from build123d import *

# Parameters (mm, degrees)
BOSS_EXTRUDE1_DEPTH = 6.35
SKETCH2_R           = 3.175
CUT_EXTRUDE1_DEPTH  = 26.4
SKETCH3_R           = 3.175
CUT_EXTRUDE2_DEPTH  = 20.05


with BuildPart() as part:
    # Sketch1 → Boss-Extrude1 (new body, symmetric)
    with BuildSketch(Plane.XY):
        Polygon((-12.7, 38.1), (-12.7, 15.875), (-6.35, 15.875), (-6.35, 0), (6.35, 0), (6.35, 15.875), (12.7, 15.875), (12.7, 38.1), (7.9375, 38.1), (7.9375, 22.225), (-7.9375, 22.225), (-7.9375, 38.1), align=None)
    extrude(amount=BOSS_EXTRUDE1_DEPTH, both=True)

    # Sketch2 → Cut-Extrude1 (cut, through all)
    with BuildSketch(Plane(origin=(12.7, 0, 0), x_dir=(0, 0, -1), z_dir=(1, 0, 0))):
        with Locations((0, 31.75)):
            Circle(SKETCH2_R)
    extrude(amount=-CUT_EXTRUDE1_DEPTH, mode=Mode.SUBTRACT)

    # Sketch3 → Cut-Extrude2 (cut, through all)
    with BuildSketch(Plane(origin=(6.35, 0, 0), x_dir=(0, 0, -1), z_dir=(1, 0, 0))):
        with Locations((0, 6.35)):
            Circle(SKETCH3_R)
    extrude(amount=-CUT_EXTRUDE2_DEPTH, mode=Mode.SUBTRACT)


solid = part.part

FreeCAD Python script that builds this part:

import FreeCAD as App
import Part
import Sketcher
Q = App.Units.Quantity


def add_polygon(sketch, points):
    """Adds a closed chain of lines whose ends are joined by coincident constraints."""
    first, n = sketch.GeometryCount, len(points)
    for a, b in zip(points, points[1:] + points[:1]):
        sketch.addGeometry(Part.LineSegment(App.Vector(*a, 0), App.Vector(*b, 0)), False)
    for i in range(n):
        sketch.addConstraint(Sketcher.Constraint("Coincident", first + i, 2, first + (i + 1) % n, 1))

doc = App.newDocument("Part")
params = doc.addObject("Spreadsheet::Sheet", "Params")
for row, (alias, value) in enumerate([
    ("sketch1_width", "0.5 in"),
    ("sketch1_width2", "0.1875 in"),
    ("pad1_length", "0.5 in"),
    ("sketch2_diameter", "0.25 in"),
    ("sketch3_diameter", "0.25 in"),
], start=1):
    params.set(f"A{row}", alias)
    params.set(f"B{row}", "=" + value)
    params.setAlias(f"B{row}", alias)

body = doc.addObject("PartDesign::Body", "Body")

# Sketch on XY plane
sketch1 = body.newObject("Sketcher::SketchObject", "Sketch")
sketch1.AttachmentSupport = (doc.getObject("XY_Plane"), [""])
sketch1.MapMode = "FlatFace"
add_polygon(sketch1, [(-12.7, 38.1), (-12.7, 15.9), (-6.3, 15.9), (-6.3, 0), (6.3, 0), (6.3, 15.9), (12.7, 15.9), (12.7, 38.1), (7.9, 38.1), (7.9, 22.2), (-7.9, 22.2), (-7.9, 38.1)])  # lines 0-11
sketch1.addConstraint([
    Sketcher.Constraint("Vertical", 0),
    Sketcher.Constraint("Horizontal", 1),
    Sketcher.Constraint("Vertical", 2),
    Sketcher.Constraint("Horizontal", 3),
    Sketcher.Constraint("Vertical", 4),
    Sketcher.Constraint("Horizontal", 5),
    Sketcher.Constraint("Vertical", 6),
    Sketcher.Constraint("Horizontal", 7),
    Sketcher.Constraint("Vertical", 8),
    Sketcher.Constraint("Horizontal", 9),
    Sketcher.Constraint("Vertical", 10),
    Sketcher.Constraint("Horizontal", 11),
    Sketcher.Constraint("Symmetric", 2, 2, 3, 2, -1, 1),
    Sketcher.Constraint("Symmetric", 0, 2, 5, 2, -2),
    Sketcher.Constraint("Symmetric", 7, 2, 10, 2, -2),
    Sketcher.Constraint("Equal", 9, 2),
    Sketcher.Constraint("Equal", 4, 8),
    Sketcher.Constraint("DistanceX", 3, 1, 3, 2, Q("0.5 in")),
    Sketcher.Constraint("DistanceX", 0, 2, 5, 2, Q("1 in")),
    Sketcher.Constraint("DistanceY", -1, 1, 6, 2, Q("1.5 in")),
    Sketcher.Constraint("DistanceX", 7, 2, 7, 1, Q("0.1875 in")),
])
sketch1.setExpression("Constraints[29]", "Params.sketch1_width")
sketch1.setExpression("Constraints[32]", "Params.sketch1_width2")
pad1 = body.newObject("PartDesign::Pad", "Pad")
pad1.Profile = sketch1
pad1.setExpression("Length", "Params.pad1_length")
pad1.Midplane = True

# Sketch on YZ plane
sketch2 = body.newObject("Sketcher::SketchObject", "Sketch001")
sketch2.AttachmentSupport = (doc.getObject("YZ_Plane"), [""])
sketch2.MapMode = "FlatFace"
sketch2.AttachmentOffset = App.Placement(App.Vector(0, 0, 0.5 * 25.4), App.Rotation())
sketch2.addGeometry(Part.Circle(App.Vector(31.8, 0, 0), App.Vector(0, 0, 1), 3.2), False)
sketch2.addConstraint([
    Sketcher.Constraint("PointOnObject", 0, 3, -1),
    Sketcher.Constraint("Diameter", 0, Q("0.25 in")),
    Sketcher.Constraint("DistanceX", -1, 1, 0, 3, Q("1.25 in")),
])
sketch2.setExpression("Constraints[1]", "Params.sketch2_diameter")
pocket1 = body.newObject("PartDesign::Pocket", "Pocket")
pocket1.Profile = sketch2
pocket1.Type = "ThroughAll"

# Sketch on YZ plane
sketch3 = body.newObject("Sketcher::SketchObject", "Sketch002")
sketch3.AttachmentSupport = (doc.getObject("YZ_Plane"), [""])
sketch3.MapMode = "FlatFace"
sketch3.AttachmentOffset = App.Placement(App.Vector(0, 0, 0.25 * 25.4), App.Rotation())
sketch3.addGeometry(Part.Circle(App.Vector(6.3, 0, 0), App.Vector(0, 0, 1), 3.2), False)
sketch3.addConstraint([
    Sketcher.Constraint("PointOnObject", 0, 3, -1),
    Sketcher.Constraint("Diameter", 0, Q("0.25 in")),
    Sketcher.Constraint("DistanceX", -1, 1, 0, 3, Q("0.25 in")),
])
sketch3.setExpression("Constraints[1]", "Params.sketch3_diameter")
pocket2 = body.newObject("PartDesign::Pocket", "Pocket001")
pocket2.Profile = sketch3
pocket2.Type = "ThroughAll"

doc.recompute()
